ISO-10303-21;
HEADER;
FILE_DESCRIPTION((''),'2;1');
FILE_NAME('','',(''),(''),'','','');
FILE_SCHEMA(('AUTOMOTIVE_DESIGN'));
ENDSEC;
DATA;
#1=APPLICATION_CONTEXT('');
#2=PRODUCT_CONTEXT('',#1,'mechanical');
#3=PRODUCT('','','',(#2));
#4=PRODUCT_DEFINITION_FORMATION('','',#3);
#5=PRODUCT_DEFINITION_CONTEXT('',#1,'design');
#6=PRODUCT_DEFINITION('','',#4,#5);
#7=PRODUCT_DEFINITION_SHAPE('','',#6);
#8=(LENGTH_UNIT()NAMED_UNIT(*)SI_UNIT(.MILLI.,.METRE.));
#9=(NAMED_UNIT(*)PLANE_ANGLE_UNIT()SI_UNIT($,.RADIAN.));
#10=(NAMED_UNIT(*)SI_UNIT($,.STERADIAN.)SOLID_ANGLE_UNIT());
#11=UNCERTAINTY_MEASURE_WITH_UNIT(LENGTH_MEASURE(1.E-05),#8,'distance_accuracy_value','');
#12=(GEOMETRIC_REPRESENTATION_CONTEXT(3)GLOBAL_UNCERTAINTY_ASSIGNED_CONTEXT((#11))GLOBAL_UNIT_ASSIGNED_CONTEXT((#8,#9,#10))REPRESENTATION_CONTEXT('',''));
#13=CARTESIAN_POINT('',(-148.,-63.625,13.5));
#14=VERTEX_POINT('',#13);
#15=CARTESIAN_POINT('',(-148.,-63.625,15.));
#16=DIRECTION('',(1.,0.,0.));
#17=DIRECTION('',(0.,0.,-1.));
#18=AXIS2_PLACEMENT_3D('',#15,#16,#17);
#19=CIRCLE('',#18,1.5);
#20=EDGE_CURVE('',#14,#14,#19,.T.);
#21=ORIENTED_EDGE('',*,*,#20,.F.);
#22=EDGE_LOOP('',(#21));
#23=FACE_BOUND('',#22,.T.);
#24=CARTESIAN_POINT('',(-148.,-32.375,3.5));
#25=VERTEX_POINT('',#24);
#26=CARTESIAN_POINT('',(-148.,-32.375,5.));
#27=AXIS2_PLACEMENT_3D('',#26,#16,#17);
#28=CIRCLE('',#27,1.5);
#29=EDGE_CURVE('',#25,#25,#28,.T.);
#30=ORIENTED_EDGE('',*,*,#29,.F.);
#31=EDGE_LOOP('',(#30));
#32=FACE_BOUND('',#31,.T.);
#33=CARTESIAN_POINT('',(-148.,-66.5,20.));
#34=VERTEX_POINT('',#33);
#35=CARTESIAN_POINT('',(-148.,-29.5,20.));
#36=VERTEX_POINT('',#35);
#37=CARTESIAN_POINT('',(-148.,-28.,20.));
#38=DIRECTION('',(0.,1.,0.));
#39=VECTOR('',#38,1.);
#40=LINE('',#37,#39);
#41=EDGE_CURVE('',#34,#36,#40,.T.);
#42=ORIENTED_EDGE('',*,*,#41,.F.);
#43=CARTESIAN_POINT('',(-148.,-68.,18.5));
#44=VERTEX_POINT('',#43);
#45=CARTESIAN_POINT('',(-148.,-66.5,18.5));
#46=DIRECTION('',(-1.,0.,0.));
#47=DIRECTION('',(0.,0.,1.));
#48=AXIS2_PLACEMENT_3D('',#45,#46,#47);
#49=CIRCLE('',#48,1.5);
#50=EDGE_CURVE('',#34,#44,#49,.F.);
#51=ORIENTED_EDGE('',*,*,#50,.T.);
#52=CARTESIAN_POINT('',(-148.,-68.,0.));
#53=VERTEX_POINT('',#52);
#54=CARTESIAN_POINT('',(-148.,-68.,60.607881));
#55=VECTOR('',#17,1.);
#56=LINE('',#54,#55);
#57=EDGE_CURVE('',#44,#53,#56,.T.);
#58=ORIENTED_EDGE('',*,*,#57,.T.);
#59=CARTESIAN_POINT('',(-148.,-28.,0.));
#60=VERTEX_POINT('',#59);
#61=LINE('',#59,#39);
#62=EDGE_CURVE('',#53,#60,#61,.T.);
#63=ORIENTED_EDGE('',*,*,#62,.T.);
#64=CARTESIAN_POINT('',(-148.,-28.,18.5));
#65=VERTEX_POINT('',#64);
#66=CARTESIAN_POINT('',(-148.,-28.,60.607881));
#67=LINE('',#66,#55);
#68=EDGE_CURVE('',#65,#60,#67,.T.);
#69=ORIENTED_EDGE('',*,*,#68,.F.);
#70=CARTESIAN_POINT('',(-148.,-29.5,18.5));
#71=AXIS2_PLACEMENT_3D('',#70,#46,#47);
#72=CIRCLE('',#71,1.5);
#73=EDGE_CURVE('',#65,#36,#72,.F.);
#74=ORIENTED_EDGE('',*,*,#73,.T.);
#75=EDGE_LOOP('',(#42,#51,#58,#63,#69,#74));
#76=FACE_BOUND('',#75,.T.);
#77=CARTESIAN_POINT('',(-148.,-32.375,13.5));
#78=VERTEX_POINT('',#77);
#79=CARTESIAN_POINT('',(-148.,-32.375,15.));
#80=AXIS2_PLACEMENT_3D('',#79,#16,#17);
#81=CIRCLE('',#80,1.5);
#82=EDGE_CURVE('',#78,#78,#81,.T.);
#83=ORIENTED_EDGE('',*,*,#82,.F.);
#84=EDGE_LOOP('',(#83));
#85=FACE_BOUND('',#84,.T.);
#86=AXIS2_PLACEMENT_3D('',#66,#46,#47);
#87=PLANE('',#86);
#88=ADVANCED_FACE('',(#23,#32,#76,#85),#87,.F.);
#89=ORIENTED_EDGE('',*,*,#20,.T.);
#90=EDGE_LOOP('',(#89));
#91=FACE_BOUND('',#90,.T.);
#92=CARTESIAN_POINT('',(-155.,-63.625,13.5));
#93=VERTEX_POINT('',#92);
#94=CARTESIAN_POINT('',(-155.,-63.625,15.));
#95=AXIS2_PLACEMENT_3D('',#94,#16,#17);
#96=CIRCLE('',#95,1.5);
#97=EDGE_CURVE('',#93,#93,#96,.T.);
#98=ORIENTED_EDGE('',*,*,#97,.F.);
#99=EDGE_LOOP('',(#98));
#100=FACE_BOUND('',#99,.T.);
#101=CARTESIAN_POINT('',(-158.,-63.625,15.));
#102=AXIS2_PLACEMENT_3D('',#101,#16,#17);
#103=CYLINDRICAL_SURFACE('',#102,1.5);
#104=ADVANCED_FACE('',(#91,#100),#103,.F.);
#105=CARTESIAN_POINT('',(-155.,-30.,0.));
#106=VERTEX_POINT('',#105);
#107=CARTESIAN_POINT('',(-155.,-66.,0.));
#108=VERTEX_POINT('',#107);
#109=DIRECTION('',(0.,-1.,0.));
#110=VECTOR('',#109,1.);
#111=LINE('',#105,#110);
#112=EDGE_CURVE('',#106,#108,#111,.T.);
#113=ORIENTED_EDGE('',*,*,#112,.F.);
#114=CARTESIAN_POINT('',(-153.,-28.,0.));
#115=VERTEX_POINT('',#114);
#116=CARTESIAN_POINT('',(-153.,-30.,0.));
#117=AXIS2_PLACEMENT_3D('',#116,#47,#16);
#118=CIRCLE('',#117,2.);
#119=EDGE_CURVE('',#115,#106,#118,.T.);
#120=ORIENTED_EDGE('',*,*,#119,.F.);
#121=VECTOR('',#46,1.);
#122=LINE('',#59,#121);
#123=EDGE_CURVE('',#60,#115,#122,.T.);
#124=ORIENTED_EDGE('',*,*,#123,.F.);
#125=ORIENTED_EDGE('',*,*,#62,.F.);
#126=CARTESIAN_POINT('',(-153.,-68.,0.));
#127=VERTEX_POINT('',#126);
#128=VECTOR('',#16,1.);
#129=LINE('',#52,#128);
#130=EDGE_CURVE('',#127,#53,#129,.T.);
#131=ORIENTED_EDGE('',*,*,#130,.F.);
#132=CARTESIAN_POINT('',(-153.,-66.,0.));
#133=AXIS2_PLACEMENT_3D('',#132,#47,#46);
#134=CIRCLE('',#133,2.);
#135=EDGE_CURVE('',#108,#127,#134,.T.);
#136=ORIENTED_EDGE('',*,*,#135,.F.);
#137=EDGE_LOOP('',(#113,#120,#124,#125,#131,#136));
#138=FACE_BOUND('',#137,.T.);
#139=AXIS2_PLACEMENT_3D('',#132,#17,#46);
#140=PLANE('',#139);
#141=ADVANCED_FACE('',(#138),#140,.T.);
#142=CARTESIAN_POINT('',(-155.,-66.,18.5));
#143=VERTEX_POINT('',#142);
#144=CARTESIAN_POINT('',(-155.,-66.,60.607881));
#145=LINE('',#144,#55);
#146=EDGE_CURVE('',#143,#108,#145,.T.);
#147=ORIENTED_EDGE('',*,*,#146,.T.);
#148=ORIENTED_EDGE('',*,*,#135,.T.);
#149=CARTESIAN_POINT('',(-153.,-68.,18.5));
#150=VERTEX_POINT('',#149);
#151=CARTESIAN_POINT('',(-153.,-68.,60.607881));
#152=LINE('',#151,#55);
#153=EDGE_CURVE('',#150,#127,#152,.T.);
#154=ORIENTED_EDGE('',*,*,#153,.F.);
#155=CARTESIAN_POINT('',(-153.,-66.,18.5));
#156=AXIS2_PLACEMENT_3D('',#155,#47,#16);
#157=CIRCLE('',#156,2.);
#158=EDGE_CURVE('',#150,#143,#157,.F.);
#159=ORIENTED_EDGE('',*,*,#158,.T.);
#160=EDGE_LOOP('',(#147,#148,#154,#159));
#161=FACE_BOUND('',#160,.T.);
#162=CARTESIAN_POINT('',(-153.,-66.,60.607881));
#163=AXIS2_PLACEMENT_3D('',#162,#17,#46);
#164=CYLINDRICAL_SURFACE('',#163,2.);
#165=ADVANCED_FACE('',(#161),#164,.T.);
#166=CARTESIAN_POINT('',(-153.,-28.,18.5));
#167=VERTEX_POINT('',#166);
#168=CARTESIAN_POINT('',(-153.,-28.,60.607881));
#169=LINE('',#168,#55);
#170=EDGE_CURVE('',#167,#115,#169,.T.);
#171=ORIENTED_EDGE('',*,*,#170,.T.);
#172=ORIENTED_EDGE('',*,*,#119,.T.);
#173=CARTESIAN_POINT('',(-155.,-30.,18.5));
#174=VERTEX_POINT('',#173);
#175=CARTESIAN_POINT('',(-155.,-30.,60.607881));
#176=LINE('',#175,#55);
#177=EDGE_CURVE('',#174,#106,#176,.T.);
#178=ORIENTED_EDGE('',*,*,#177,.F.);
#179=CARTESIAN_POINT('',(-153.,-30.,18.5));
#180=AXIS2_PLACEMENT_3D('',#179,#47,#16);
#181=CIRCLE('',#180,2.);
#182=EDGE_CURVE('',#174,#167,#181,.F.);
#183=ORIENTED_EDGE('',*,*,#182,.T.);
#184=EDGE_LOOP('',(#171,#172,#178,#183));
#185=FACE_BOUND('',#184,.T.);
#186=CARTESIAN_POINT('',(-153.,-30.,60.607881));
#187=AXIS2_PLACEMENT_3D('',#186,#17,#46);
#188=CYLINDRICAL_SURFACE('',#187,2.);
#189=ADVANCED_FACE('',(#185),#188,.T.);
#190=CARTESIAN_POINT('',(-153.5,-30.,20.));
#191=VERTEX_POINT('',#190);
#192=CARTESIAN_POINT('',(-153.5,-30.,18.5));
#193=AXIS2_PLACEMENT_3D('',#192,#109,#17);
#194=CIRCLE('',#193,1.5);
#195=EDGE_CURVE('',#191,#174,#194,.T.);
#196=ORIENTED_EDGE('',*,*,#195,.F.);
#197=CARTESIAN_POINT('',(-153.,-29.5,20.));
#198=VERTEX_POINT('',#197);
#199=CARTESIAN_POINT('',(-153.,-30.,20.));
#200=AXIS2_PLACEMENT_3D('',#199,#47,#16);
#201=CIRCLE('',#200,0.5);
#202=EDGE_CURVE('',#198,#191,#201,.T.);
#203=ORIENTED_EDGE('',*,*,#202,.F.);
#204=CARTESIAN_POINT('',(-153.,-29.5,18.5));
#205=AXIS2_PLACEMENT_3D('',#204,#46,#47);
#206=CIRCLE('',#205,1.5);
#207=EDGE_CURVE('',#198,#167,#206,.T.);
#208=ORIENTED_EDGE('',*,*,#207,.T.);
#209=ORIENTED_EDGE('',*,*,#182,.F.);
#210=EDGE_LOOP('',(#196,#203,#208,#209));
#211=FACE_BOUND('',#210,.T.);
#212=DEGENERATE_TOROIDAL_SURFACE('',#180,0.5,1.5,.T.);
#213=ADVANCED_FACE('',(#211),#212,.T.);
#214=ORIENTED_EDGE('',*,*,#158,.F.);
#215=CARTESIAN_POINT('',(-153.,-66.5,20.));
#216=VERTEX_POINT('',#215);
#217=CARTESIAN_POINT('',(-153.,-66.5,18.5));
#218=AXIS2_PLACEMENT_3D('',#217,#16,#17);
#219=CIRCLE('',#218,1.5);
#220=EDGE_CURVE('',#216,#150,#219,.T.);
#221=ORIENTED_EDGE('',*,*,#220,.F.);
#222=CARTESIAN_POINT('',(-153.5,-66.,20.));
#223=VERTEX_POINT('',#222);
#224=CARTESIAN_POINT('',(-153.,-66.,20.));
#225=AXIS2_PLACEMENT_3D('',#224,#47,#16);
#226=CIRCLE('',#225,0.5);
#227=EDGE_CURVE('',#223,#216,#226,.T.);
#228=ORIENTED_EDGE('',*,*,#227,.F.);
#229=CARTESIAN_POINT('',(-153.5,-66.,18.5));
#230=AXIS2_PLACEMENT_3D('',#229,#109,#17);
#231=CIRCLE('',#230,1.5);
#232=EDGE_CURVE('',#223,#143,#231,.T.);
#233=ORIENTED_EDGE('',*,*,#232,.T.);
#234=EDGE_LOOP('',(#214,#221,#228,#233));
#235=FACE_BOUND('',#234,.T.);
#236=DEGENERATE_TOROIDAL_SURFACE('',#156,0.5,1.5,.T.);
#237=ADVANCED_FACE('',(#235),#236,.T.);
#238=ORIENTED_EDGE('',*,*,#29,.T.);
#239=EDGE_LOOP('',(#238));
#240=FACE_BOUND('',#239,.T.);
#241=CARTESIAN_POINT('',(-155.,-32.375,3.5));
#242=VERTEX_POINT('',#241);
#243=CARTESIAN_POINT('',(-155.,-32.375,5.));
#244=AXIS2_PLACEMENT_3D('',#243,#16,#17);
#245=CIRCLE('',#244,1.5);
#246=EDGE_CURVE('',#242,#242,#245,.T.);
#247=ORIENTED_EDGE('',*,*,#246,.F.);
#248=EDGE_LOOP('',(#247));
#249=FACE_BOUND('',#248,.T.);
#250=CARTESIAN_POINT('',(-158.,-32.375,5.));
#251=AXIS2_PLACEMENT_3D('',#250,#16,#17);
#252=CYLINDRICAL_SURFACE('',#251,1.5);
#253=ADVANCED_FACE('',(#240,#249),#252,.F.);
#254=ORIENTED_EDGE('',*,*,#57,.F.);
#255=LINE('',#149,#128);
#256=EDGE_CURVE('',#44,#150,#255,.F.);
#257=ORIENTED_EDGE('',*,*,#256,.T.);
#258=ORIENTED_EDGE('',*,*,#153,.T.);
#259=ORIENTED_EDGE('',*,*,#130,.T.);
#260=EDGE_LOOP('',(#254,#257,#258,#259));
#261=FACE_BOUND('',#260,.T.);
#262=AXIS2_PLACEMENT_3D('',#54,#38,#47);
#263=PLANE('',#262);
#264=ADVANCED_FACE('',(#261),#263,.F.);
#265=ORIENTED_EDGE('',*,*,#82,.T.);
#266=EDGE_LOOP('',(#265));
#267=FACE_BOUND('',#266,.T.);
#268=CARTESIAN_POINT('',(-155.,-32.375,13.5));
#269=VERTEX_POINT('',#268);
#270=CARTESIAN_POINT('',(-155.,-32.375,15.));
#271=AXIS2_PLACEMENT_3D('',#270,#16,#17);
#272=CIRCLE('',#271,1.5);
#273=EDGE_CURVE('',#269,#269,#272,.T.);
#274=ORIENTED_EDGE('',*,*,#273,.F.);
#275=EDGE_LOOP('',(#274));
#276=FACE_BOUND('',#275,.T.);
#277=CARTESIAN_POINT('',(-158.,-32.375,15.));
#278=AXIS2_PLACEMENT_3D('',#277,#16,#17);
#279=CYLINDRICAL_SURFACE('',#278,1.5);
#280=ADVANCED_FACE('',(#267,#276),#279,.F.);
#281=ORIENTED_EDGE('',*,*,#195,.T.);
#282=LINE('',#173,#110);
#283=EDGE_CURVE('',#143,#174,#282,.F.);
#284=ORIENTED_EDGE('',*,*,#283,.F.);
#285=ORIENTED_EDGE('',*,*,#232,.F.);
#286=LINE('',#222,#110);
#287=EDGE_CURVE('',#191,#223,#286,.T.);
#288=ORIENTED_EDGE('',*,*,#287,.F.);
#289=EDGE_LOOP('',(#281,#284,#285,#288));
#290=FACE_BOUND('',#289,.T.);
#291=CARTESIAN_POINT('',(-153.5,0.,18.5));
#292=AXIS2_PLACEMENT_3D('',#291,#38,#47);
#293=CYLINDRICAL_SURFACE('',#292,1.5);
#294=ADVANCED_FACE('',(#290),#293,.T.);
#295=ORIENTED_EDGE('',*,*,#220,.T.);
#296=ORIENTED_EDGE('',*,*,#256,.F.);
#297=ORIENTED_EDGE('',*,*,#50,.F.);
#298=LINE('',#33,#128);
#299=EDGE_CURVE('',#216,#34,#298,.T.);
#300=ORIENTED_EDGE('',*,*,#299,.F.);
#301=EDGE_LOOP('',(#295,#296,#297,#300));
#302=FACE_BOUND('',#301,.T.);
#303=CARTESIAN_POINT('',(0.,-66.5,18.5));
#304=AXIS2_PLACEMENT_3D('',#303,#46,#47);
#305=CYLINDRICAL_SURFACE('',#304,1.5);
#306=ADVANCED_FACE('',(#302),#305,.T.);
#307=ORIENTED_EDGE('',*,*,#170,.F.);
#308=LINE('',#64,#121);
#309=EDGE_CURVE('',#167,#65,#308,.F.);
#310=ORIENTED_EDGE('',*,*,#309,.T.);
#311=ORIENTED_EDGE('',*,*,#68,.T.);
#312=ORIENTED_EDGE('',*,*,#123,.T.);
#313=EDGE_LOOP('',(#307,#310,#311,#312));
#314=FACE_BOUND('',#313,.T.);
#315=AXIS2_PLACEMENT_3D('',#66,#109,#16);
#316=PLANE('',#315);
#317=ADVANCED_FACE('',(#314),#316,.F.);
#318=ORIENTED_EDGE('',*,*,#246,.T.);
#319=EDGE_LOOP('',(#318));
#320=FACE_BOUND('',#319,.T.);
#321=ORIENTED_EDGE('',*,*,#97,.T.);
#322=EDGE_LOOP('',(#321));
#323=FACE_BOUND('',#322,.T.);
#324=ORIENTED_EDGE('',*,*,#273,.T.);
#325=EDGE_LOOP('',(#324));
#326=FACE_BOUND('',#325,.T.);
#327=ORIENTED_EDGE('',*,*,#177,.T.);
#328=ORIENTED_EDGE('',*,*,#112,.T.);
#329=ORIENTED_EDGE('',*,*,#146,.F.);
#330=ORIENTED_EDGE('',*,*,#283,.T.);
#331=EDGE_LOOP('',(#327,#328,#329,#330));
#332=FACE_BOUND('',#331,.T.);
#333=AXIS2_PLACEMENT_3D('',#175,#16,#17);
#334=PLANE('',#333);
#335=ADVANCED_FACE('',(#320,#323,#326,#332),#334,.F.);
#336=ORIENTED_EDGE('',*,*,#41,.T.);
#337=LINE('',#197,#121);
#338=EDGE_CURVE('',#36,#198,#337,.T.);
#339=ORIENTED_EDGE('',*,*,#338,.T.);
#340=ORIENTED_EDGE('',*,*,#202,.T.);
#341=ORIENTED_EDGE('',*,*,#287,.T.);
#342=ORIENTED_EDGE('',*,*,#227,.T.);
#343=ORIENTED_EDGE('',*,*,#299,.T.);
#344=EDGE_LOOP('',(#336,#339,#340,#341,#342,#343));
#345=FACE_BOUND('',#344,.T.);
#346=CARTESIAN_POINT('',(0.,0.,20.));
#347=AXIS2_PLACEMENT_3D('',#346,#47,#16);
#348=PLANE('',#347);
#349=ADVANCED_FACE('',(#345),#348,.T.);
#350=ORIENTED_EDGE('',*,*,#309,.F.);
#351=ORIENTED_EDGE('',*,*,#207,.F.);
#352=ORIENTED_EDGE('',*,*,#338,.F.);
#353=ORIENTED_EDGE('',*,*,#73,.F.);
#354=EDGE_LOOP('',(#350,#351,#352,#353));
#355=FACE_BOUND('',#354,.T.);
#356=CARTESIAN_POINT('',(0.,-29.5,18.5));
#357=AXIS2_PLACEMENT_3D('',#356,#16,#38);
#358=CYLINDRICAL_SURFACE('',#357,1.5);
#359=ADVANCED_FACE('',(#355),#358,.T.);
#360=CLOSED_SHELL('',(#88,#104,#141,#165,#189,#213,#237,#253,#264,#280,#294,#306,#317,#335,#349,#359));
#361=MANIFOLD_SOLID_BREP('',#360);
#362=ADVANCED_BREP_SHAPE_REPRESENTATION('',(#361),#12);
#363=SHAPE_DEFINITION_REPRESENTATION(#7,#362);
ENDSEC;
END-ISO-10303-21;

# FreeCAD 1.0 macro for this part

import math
import FreeCAD as App
import Part
import Sketcher

V = App.Vector
Q = App.Units.Quantity


def edges_at(feature, points):
    """Names of the edges that pass closest to the given points."""
    edges = feature.Shape.Edges
    near = lambda p: min(range(len(edges)), key=lambda i: edges[i].distToShape(Part.Vertex(*p))[0])
    return sorted({f"Edge{near(p) + 1}" for p in points})

doc = App.newDocument("Part")
params = doc.addObject("Spreadsheet::Sheet", "Params")
for row, (alias, value) in enumerate([
    ("sketch1_radius", "2 mm"),
    ("sketch1_width", "5 mm"),
    ("sketch1_height", "36 mm"),
    ("pad1_length", "20 mm"),
    ("sketch2_diameter", "3 mm"),
    ("pocket1_length", "10 mm"),
    ("fillet_radius", "1.5 mm"),
], start=1):
    params.set(f"A{row}", alias)
    params.set(f"B{row}", "=" + value)
    params.setAlias(f"B{row}", alias)

body = doc.addObject("PartDesign::Body", "Body")

sketch1 = body.newObject("Sketcher::SketchObject", "Sketch")
sketch1.AttachmentSupport = (doc.getObject("XY_Plane"), [""])
sketch1.MapMode = "FlatFace"
sketch1.addGeometry([
    Part.LineSegment(V(-148, -28, 0), V(-153, -28, 0)),
    Part.ArcOfCircle(Part.Circle(V(-153, -30, 0), V(0, 0, 1), 2), math.radians(90), math.radians(180)),
    Part.LineSegment(V(-155, -30, 0), V(-155, -66, 0)),
    Part.ArcOfCircle(Part.Circle(V(-153, -66, 0), V(0, 0, 1), 2), math.radians(-180), math.radians(-90)),
    Part.LineSegment(V(-153, -68, 0), V(-148, -68, 0)),
    Part.LineSegment(V(-148, -68, 0), V(-148, -28, 0)),
], False)
sketch1.addConstraint([
    Sketcher.Constraint("Tangent", 0, 2, 1, 1),
    Sketcher.Constraint("Tangent", 1, 2, 2, 1),
    Sketcher.Constraint("Tangent", 2, 2, 3, 1),
    Sketcher.Constraint("Tangent", 3, 2, 4, 1),
    Sketcher.Constraint("Coincident", 4, 2, 5, 1),
    Sketcher.Constraint("Coincident", 5, 2, 0, 1),
    Sketcher.Constraint("Horizontal", 0),
    Sketcher.Constraint("Vertical", 2),
    Sketcher.Constraint("Horizontal", 4),
    Sketcher.Constraint("Vertical", 5),
    Sketcher.Constraint("Equal", 1, 3),
    Sketcher.Constraint("Radius", 1, Q("2 mm")),
    Sketcher.Constraint("DistanceX", 0, 2, 0, 1, Q("5 mm")),
    Sketcher.Constraint("DistanceY", 2, 2, 2, 1, Q("36 mm")),
    Sketcher.Constraint("DistanceX", 1, 3, -1, 1, Q("153 mm")),
    Sketcher.Constraint("DistanceY", 1, 3, -1, 1, Q("30 mm")),
])
sketch1.setExpression("Constraints[11]", "Params.sketch1_radius")
sketch1.setExpression("Constraints[12]", "Params.sketch1_width")
sketch1.setExpression("Constraints[13]", "Params.sketch1_height")
pad1 = body.newObject("PartDesign::Pad", "Pad")
pad1.Profile = sketch1
pad1.setExpression("Length", "Params.pad1_length")

sketch2 = body.newObject("Sketcher::SketchObject", "Sketch001")
sketch2.AttachmentSupport = (doc.getObject("YZ_Plane"), [""])
sketch2.MapMode = "FlatFace"
sketch2.AttachmentOffset = App.Placement(V(0, 0, -148), App.Rotation())
sketch2.addGeometry([
    Part.Circle(V(-63.6, 15, 0), V(0, 0, 1), 1.5),
    Part.Circle(V(-32.4, 5, 0), V(0, 0, 1), 1.5),
    Part.Circle(V(-32.4, 15, 0), V(0, 0, 1), 1.5),
], False)
sketch2.addConstraint([
    Sketcher.Constraint("Equal", 0, 1),
    Sketcher.Constraint("Equal", 1, 2),
    Sketcher.Constraint("Horizontal", 0, 3, 2, 3),
    Sketcher.Constraint("Vertical", 1, 3, 2, 3),
    Sketcher.Constraint("Diameter", 0, Q("3 mm")),
    Sketcher.Constraint("DistanceY", -1, 1, 0, 3, Q("15 mm")),
    Sketcher.Constraint("DistanceY", -1, 1, 1, 3, Q("5 mm")),
    Sketcher.Constraint("DistanceX", 0, 3, 1, 3, Q("31.25 mm")),
    Sketcher.Constraint("DistanceX", 0, 3, -1, 1, Q("63.625 mm")),
])
sketch2.setExpression("Constraints[4]", "Params.sketch2_diameter")
pocket1 = body.newObject("PartDesign::Pocket", "Pocket")
pocket1.Profile = sketch2
pocket1.setExpression("Length", "Params.pocket1_length")
doc.recompute()

fillet = body.newObject("PartDesign::Fillet", "Fillet")
fillet.Base = (pocket1, edges_at(pocket1, [
    (-150.5, -68, 20),
    (-150.5, -28, 20),
    (-154.414, -28.586, 20),
    (-155, -48, 20),
    (-154.414, -67.414, 20),
]))
fillet.setExpression("Radius", "Params.fillet_radius")

doc.recompute()
